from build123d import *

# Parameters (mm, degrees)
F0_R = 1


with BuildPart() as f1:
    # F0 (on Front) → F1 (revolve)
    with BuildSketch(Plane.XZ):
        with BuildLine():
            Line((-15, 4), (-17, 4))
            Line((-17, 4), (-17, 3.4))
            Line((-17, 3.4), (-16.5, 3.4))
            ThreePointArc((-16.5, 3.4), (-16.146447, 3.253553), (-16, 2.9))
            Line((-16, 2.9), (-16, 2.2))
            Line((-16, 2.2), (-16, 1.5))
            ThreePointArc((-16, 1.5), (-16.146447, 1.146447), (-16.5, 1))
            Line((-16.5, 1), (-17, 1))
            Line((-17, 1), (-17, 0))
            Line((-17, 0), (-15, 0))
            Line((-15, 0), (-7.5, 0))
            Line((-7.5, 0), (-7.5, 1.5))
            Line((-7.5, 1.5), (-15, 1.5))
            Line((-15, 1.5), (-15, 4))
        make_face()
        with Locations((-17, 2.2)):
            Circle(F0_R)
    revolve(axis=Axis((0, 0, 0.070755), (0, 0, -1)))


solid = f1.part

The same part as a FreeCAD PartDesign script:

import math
import FreeCAD as App
import Part
import Sketcher
from FreeCAD import Vector
Q = App.Units.Quantity

doc = App.newDocument("Part")
body = doc.addObject("PartDesign::Body", "Body")
body.AllowCompound = True

# Sketch on XZ plane
sketch1 = body.newObject("Sketcher::SketchObject", "Sketch")
sketch1.AttachmentSupport = (doc.getObject("XZ_Plane"), [""])
sketch1.MapMode = "FlatFace"
sketch1.addGeometry([
    Part.LineSegment(Vector(-15, 4, 0), Vector(-17, 4, 0)),  # 0
    Part.LineSegment(Vector(-17, 4, 0), Vector(-17, 3.4, 0)),  # 1
    Part.LineSegment(Vector(-17, 3.4, 0), Vector(-16.5, 3.4, 0)),  # 2
    Part.ArcOfCircle(Part.Circle(Vector(-16.5, 2.9, 0), Vector(0, 0, 1), 0.5), math.radians(0), math.radians(90)),  # 3
    Part.LineSegment(Vector(-16, 2.9, 0), Vector(-16, 2.2, 0)),  # 4
    Part.LineSegment(Vector(-16, 2.2, 0), Vector(-16, 1.5, 0)),  # 5
    Part.ArcOfCircle(Part.Circle(Vector(-16.5, 1.5, 0), Vector(0, 0, 1), 0.5), math.radians(-90), math.radians(0)),  # 6
    Part.LineSegment(Vector(-16.5, 1, 0), Vector(-17, 1, 0)),  # 7
    Part.LineSegment(Vector(-17, 1, 0), Vector(-17, 0, 0)),  # 8
    Part.LineSegment(Vector(-17, 0, 0), Vector(-7.5, 0, 0)),  # 9
    Part.LineSegment(Vector(-7.5, 0, 0), Vector(-7.5, 1.5, 0)),  # 10
    Part.LineSegment(Vector(-7.5, 1.5, 0), Vector(-15, 1.5, 0)),  # 11
    Part.LineSegment(Vector(-15, 1.5, 0), Vector(-15, 4, 0)),  # 12
    Part.Circle(Vector(-17, 2.2, 0), Vector(0, 0, 1), 1),  # 13
], False)
sketch1.addConstraint([
    Sketcher.Constraint("Coincident", 0, 2, 1, 1),
    Sketcher.Constraint("Coincident", 1, 2, 2, 1),
    Sketcher.Constraint("Coincident", 2, 2, 3, 2),
    Sketcher.Constraint("Coincident", 3, 1, 4, 1),
    Sketcher.Constraint("Coincident", 4, 2, 5, 1),
    Sketcher.Constraint("Coincident", 5, 2, 6, 2),
    Sketcher.Constraint("Coincident", 6, 1, 7, 1),
    Sketcher.Constraint("Coincident", 7, 2, 8, 1),
    Sketcher.Constraint("Coincident", 8, 2, 9, 1),
    Sketcher.Constraint("Coincident", 9, 2, 10, 1),
    Sketcher.Constraint("Coincident", 10, 2, 11, 1),
    Sketcher.Constraint("Coincident", 11, 2, 12, 1),
    Sketcher.Constraint("Coincident", 12, 2, 0, 1),
    Sketcher.Constraint("Horizontal", 0),
    Sketcher.Constraint("Vertical", 1),
    Sketcher.Constraint("Horizontal", 2),
    Sketcher.Constraint("Vertical", 4),
    Sketcher.Constraint("Vertical", 5),
    Sketcher.Constraint("Horizontal", 7),
    Sketcher.Constraint("Vertical", 8),
    Sketcher.Constraint("Horizontal", 9),
    Sketcher.Constraint("Vertical", 10),
    Sketcher.Constraint("Horizontal", 11),
    Sketcher.Constraint("Vertical", 12),
    Sketcher.Constraint("Equal", 3, 6),
    Sketcher.Constraint("PointOnObject", 8, 2, -1),
    Sketcher.Constraint("Horizontal", 13, 3, 4, 2),
    Sketcher.Constraint("Horizontal", 6, 3, 5, 2),
    Sketcher.Constraint("Horizontal", 5, 2, 10, 2),
    Sketcher.Constraint("Vertical", 13, 3, 0, 2),
    Sketcher.Constraint("Vertical", 6, 3, 2, 2),
    Sketcher.Constraint("Vertical", 2, 2, 6, 1),
    Sketcher.Constraint("Vertical", 1, 2, 7, 2),
    Sketcher.Constraint("Equal", 4, 5),
    Sketcher.Constraint("Diameter", 13, Q("2 mm")),
    Sketcher.Constraint("Radius", 3, Q("0.500001 mm")),
    Sketcher.Constraint("DistanceX", 0, 2, 0, 1, Q("2 mm")),
    Sketcher.Constraint("DistanceY", 8, 2, 8, 1, Q("1 mm")),
    Sketcher.Constraint("DistanceX", 2, 1, 2, 2, Q("0.5 mm")),
    Sketcher.Constraint("DistanceX", 9, 1, 9, 2, Q("9.5 mm")),
    Sketcher.Constraint("DistanceY", 1, 2, 1, 1, Q("0.6 mm")),
    Sketcher.Constraint("DistanceY", 4, 2, 4, 1, Q("0.7 mm")),
    Sketcher.Constraint("DistanceY", 12, 1, 12, 2, Q("2.5 mm")),
    Sketcher.Constraint("DistanceX", 13, 3, -1, 1, Q("17 mm")),
])
revolution = body.newObject("PartDesign::Revolution", "Revolution")
revolution.Profile = sketch1
revolution.ReferenceAxis = (sketch1, ["V_Axis"])
revolution.Angle = 360

doc.recompute()
